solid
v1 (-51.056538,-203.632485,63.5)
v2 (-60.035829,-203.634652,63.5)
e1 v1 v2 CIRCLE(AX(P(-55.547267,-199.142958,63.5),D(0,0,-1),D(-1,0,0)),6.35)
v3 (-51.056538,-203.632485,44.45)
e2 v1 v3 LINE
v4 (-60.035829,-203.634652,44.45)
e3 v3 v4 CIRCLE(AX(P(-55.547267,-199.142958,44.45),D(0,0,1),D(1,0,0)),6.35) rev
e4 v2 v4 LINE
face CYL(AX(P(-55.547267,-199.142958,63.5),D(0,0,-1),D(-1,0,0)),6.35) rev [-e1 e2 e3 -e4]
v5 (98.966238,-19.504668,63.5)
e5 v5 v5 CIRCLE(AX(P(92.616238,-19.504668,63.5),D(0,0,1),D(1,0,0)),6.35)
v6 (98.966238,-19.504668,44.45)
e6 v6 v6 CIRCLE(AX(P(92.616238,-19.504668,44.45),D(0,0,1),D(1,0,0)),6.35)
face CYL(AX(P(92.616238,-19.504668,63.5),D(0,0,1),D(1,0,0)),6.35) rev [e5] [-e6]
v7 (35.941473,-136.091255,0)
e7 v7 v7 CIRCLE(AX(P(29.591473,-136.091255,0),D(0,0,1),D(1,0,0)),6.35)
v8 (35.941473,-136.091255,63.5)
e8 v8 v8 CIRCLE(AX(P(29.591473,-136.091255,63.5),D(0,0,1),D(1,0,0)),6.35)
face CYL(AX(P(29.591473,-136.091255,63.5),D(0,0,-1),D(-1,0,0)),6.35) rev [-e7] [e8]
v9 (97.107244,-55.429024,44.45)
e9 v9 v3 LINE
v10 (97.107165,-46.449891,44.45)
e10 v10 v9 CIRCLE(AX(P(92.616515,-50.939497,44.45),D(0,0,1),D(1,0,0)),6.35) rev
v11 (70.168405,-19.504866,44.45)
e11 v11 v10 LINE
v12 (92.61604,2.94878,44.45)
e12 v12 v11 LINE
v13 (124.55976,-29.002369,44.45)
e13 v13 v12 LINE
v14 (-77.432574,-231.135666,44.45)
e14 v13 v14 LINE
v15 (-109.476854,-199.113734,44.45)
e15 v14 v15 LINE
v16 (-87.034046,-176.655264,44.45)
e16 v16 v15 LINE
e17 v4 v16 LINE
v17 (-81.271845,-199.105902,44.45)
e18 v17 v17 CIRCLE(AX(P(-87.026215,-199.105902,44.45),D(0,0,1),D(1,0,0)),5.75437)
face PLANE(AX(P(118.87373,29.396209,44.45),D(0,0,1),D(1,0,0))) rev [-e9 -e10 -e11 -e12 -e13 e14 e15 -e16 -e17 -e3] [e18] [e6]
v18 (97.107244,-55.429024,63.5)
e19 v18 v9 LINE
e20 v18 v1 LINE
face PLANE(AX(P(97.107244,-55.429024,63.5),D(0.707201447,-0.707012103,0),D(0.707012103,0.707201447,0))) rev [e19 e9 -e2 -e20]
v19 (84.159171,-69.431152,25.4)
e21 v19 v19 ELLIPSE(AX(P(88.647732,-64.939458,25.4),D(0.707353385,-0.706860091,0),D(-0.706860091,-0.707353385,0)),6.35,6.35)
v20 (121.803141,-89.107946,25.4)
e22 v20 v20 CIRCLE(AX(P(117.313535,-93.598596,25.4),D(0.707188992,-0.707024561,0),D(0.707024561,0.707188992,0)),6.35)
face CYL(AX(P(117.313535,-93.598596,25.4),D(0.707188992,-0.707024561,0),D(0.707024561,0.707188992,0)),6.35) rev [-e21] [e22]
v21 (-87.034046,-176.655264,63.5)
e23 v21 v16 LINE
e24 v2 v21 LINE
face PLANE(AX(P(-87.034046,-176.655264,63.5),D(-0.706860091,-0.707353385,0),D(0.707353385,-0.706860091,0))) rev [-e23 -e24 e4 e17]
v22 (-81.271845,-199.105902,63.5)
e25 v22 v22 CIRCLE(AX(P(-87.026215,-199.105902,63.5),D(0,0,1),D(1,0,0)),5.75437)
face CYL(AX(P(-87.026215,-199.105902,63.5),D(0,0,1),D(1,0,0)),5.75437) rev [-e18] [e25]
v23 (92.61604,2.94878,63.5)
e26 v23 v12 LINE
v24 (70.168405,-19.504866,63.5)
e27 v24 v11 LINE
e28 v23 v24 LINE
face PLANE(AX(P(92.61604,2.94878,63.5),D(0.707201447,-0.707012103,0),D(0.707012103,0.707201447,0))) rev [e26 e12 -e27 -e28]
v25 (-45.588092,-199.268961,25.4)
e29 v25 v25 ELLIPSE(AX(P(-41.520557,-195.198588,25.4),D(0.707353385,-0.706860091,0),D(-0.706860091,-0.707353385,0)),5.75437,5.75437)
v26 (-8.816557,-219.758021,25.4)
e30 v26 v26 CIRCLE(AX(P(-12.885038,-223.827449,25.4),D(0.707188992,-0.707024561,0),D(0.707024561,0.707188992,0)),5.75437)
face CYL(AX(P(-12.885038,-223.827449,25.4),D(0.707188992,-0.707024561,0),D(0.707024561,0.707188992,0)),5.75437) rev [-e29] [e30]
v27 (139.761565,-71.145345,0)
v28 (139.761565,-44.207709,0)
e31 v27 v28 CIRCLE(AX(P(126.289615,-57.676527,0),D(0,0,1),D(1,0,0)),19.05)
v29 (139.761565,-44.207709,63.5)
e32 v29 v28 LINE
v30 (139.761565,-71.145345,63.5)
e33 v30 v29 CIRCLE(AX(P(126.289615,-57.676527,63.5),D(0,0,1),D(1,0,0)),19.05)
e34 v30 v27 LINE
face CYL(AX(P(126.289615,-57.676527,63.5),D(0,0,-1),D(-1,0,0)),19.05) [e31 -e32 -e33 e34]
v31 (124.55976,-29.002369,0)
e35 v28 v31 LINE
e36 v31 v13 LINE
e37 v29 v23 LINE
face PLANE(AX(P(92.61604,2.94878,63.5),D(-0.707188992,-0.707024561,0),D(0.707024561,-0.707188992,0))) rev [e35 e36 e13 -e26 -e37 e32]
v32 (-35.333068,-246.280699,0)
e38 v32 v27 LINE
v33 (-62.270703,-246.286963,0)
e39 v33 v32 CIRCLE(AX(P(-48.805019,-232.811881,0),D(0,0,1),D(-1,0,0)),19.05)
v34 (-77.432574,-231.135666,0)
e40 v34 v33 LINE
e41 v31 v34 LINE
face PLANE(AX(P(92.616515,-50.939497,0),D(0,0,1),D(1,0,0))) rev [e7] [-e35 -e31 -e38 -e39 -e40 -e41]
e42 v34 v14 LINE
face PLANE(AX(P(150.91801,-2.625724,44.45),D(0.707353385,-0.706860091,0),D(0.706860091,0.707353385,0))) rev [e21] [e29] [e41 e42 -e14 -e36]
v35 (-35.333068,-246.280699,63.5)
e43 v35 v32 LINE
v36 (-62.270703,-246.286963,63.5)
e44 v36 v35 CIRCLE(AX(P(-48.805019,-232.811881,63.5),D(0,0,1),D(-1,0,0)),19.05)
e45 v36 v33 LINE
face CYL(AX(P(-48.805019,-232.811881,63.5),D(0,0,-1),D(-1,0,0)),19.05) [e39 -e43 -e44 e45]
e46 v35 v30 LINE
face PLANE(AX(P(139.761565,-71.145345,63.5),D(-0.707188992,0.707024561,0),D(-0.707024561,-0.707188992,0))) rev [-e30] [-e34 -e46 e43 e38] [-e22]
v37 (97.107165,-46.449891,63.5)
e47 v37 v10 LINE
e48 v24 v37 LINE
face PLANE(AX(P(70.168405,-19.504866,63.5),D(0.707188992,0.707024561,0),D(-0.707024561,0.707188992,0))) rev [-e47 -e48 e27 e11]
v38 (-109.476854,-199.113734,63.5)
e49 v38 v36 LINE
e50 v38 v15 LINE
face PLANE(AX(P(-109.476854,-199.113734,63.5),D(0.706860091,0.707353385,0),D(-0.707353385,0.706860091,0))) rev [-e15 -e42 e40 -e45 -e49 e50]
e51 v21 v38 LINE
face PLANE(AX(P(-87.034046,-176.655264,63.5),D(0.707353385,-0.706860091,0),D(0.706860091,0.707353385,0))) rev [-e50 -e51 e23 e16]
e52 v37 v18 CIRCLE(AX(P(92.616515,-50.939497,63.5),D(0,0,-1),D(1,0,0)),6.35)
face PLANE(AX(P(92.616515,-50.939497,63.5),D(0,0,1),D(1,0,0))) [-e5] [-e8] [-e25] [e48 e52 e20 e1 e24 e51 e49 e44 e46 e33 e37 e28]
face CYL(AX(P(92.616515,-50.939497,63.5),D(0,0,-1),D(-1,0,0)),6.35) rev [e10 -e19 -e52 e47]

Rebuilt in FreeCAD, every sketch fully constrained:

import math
import FreeCAD as App
import Part
import Sketcher
Q = App.Units.Quantity

doc = App.newDocument("Part")
params = doc.addObject("Spreadsheet::Sheet", "Params")
for row, (alias, value) in enumerate([
    ("sketch1_diameter", "0.5 in"),
    ("sketch1_radius", "0.75 in"),
    ("sketch1_length", "1.25 in"),
    ("sketch1_length2", "9.75 in"),
    ("pad1_length", "2.5 in"),
    ("sketch2_height", "1.75 in"),
    ("hole_diameter", "0.4531 in"),
    ("hole2_diameter", "0.4531 in"),
    ("hole2_cbore_diameter", "0.5 in"),
    ("hole2_cbore_depth", "1 in"),
    ("sketch5_diameter", "0.5 in"),
    ("hole3_diameter", "0.5 in"),
    ("hole4_diameter", "0.4531 in"),
], start=1):
    params.set(f"A{row}", alias)
    params.set(f"B{row}", "=" + value)
    params.setAlias(f"B{row}", alias)

body = doc.addObject("PartDesign::Body", "Body")

# Sketch on XY plane
sketch1 = body.newObject("Sketcher::SketchObject", "Sketch")
sketch1.AttachmentSupport = (doc.getObject("XY_Plane"), [""])
sketch1.MapMode = "FlatFace"
sketch1.addGeometry([
    Part.LineSegment(App.Vector(-87, -177, 0), App.Vector(-109, -199, 0)),  # 0
    Part.LineSegment(App.Vector(-109, -199, 0), App.Vector(-62, -246, 0)),  # 1
    Part.ArcOfCircle(Part.Circle(App.Vector(-49, -233, 0), App.Vector(0, 0, 1), 19), math.radians(-135), math.radians(-45)),  # 2
    Part.LineSegment(App.Vector(-35, -246, 0), App.Vector(140, -71, 0)),  # 3
    Part.ArcOfCircle(Part.Circle(App.Vector(126, -58, 0), App.Vector(0, 0, 1), 19), math.radians(-45), math.radians(45)),  # 4
    Part.LineSegment(App.Vector(140, -44, 0), App.Vector(124, -28, 0)),  # 5
    Part.LineSegment(App.Vector(124, -28, 0), App.Vector(93, 3, 0)),  # 6
    Part.LineSegment(App.Vector(93, 3, 0), App.Vector(70, -20, 0)),  # 7
    Part.LineSegment(App.Vector(70, -20, 0), App.Vector(97, -46, 0)),  # 8
    Part.ArcOfCircle(Part.Circle(App.Vector(93, -51, 0), App.Vector(0, 0, 1), 6), math.radians(-45), math.radians(45)),  # 9
    Part.LineSegment(App.Vector(97, -55, 0), App.Vector(-51, -204, 0)),  # 10
    Part.ArcOfCircle(Part.Circle(App.Vector(-56, -199, 0), App.Vector(0, 0, 1), 6), math.radians(-135), math.radians(-45)),  # 11
    Part.LineSegment(App.Vector(-60, -204, 0), App.Vector(-87, -177, 0)),  # 12
    Part.Circle(App.Vector(30, -136, 0), App.Vector(0, 0, 1), 6),  # 13
], False)
sketch1.addConstraint([
    Sketcher.Constraint("Coincident", 0, 2, 1, 1),
    Sketcher.Constraint("Tangent", 1, 2, 2, 1),
    Sketcher.Constraint("Tangent", 2, 2, 3, 1),
    Sketcher.Constraint("Tangent", 3, 2, 4, 1),
    Sketcher.Constraint("Tangent", 4, 2, 5, 1),
    Sketcher.Constraint("Coincident", 5, 2, 6, 1),
    Sketcher.Constraint("Coincident", 6, 2, 7, 1),
    Sketcher.Constraint("Coincident", 7, 2, 8, 1),
    Sketcher.Constraint("Tangent", 8, 2, 9, 2),
    Sketcher.Constraint("Tangent", 9, 1, 10, 1),
    Sketcher.Constraint("Tangent", 10, 2, 11, 2),
    Sketcher.Constraint("Tangent", 11, 1, 12, 1),
    Sketcher.Constraint("Coincident", 12, 2, 0, 1),
    Sketcher.Constraint("Equal", 2, 4),
    Sketcher.Constraint("Equal", 9, 11),
    Sketcher.Constraint("Equal", 11, 13),
    Sketcher.Constraint("Perpendicular", 0, 1),
    Sketcher.Constraint("Parallel", 5, 6),
    Sketcher.Constraint("Parallel", 6, 8),
    Sketcher.Constraint("Parallel", 7, 10),
    Sketcher.Constraint("Parallel", 1, 12),
    Sketcher.Constraint("Vertical", 3, 2, 4, 2),
    Sketcher.Constraint("Equal", 0, 7),
    Sketcher.Constraint("Diameter", 13, Q("0.5 in")),
    Sketcher.Constraint("Radius", 2, Q("0.75 in")),
    Sketcher.Constraint("Distance", 0, Q("1.25 in")),
    Sketcher.Constraint("Distance", 3, Q("9.75 in")),
    Sketcher.Constraint("Angle", 0, Q("-134.980015 deg")),
    Sketcher.Constraint("DistanceX", 10, 2, -1, 1, Q("2.0100999 in")),
    Sketcher.Constraint("DistanceY", 0, 2, 13, 3, Q("2.4811999 in")),
    Sketcher.Constraint("DistanceY", 2, 2, -1, 1, Q("246.280699 mm")),
    Sketcher.Constraint("DistanceX", 9, 3, 4, 3, Q("33.6731 mm")),
    Sketcher.Constraint("DistanceX", 11, 3, 2, 2, Q("20.214199 mm")),
    Sketcher.Constraint("DistanceY", 5, 2, 7, 2, Q("8.986601 mm")),
    Sketcher.Constraint("Distance", 5, Q("22.223539 mm")),
    Sketcher.Constraint("Distance", 8, Q("38.10159 mm")),
    Sketcher.Constraint("DistanceX", 13, 3, 9, 3, Q("63.025042 mm")),
    Sketcher.Constraint("DistanceY", 13, 3, 9, 3, Q("85.151758 mm")),
])
sketch1.setExpression("Constraints[23]", "Params.sketch1_diameter")
sketch1.setExpression("Constraints[24]", "Params.sketch1_radius")
sketch1.setExpression("Constraints[25]", "Params.sketch1_length")
sketch1.setExpression("Constraints[26]", "Params.sketch1_length2")
pad1 = body.newObject("PartDesign::Pad", "Pad")
pad1.Profile = sketch1
pad1.setExpression("Length", "Params.pad1_length")

# Sketch on an angled plane
sketch2 = body.newObject("Sketcher::SketchObject", "Sketch001")
sketch2.Placement = App.Placement(App.Vector(-154.257083, -154.364734, 0), App.Rotation(App.Vector(0.707353385, -0.706860091, 0), App.Vector(0, 0, 1), App.Vector(-0.706860091, -0.707353385, 0), "ZXY"))
sketch2.addGeometry([
    Part.LineSegment(App.Vector(63, 44, 0), App.Vector(63, 0, 0)),
    Part.LineSegment(App.Vector(63, 0, 0), App.Vector(109, 0, 0)),
    Part.LineSegment(App.Vector(109, 0, 0), App.Vector(109, 44, 0)),
    Part.LineSegment(App.Vector(109, 44, 0), App.Vector(63, 44, 0)),
], False)
sketch2.addConstraint([
    Sketcher.Constraint("Coincident", 0, 2, 1, 1),
    Sketcher.Constraint("Coincident", 1, 2, 2, 1),
    Sketcher.Constraint("Coincident", 2, 2, 3, 1),
    Sketcher.Constraint("Coincident", 3, 2, 0, 1),
    Sketcher.Constraint("Vertical", 0),
    Sketcher.Constraint("Horizontal", 1),
    Sketcher.Constraint("Vertical", 2),
    Sketcher.Constraint("Horizontal", 3),
    Sketcher.Constraint("PointOnObject", 0, 2, -1),
    Sketcher.Constraint("DistanceY", 0, 2, 0, 1, Q("1.75 in")),
    Sketcher.Constraint("DistanceX", 1, 1, 1, 2, Q("45.301656 mm")),
    Sketcher.Constraint("DistanceX", -1, 1, 0, 2, Q("63.306729 mm")),
])
sketch2.setExpression("Constraints[9]", "Params.sketch2_height")
pocket1 = body.newObject("PartDesign::Pocket", "Pocket")
pocket1.Profile = sketch2
pocket1.Type = "ThroughAll"

# Sketch on XY plane
sketch3 = body.newObject("Sketcher::SketchObject", "Sketch002")
sketch3.AttachmentSupport = (doc.getObject("XY_Plane"), [""])
sketch3.MapMode = "FlatFace"
sketch3.AttachmentOffset = App.Placement(App.Vector(0, 0, 2.5 * 25.4), App.Rotation())
sketch3.addGeometry(Part.Circle(App.Vector(-87, -199, 0), App.Vector(0, 0, 1), 6), False)
sketch3.addConstraint([
    Sketcher.Constraint("Diameter", 0, Q("0.4531 in")),
    Sketcher.Constraint("DistanceX", 0, 3, -1, 1, Q("87.026215 mm")),
    Sketcher.Constraint("DistanceY", 0, 3, -1, 1, Q("199.105902 mm")),
])
doc.recompute()
hole = body.newObject("PartDesign::Hole", "Hole")
hole.Profile = sketch3
hole.ThreadType = "None"
hole.setExpression("Diameter", "Params.hole_diameter")
hole.DepthType = "ThroughAll"

# Sketch on XY plane
sketch4 = body.newObject("Sketcher::SketchObject", "Sketch003")
sketch4.AttachmentSupport = (doc.getObject("XY_Plane"), [""])
sketch4.MapMode = "FlatFace"
sketch4.AttachmentOffset = App.Placement(App.Vector(0, 0, 2.5 * 25.4), App.Rotation())
sketch4.addGeometry(Part.Circle(App.Vector(93, -20, 0), App.Vector(0, 0, 1), 6), False)
sketch4.addConstraint([
    Sketcher.Constraint("Diameter", 0, Q("0.4531 in")),
    Sketcher.Constraint("DistanceY", 0, 3, -1, 1, Q("19.504668 mm")),
    Sketcher.Constraint("DistanceX", -1, 1, 0, 3, Q("92.616238 mm")),
])
doc.recompute()
hole2 = body.newObject("PartDesign::Hole", "Hole001")
hole2.Profile = sketch4
hole2.ThreadType = "None"
hole2.setExpression("Diameter", "Params.hole2_diameter")
hole2.DepthType = "ThroughAll"
hole2.HoleCutType = "Counterbore"
hole2.setExpression("HoleCutDiameter", "Params.hole2_cbore_diameter")
hole2.setExpression("HoleCutDepth", "Params.hole2_cbore_depth")

# Sketch on an angled plane
sketch5 = body.newObject("Sketcher::SketchObject", "Sketch004")
sketch5.Placement = App.Placement(App.Vector(105.469704, -105.445181, 0), App.Rotation(App.Vector(0, 0, -1), App.Vector(0.707024561, 0.707188992, 0), App.Vector(0.707188992, -0.707024561, 0), "ZXY"))
sketch5.addGeometry(Part.Circle(App.Vector(-25, 17, 0), App.Vector(0, 0, 1), 6), False)
sketch5.addConstraint([
    Sketcher.Constraint("Diameter", 0, Q("0.5 in")),
    Sketcher.Constraint("DistanceX", 0, 3, -1, 1, Q("1 in")),
    Sketcher.Constraint("DistanceY", -1, 1, 0, 3, Q("16.751654 mm")),
])
sketch5.setExpression("Constraints[0]", "Params.sketch5_diameter")
doc.recompute()
hole3 = body.newObject("PartDesign::Hole", "Hole002")
hole3.Profile = sketch5
hole3.ThreadType = "None"
hole3.setExpression("Diameter", "Params.hole3_diameter")
hole3.DepthType = "ThroughAll"

# Sketch on an angled plane
sketch6 = body.newObject("Sketcher::SketchObject", "Sketch005")
sketch6.Placement = App.Placement(App.Vector(105.469704, -105.445181, 0), App.Rotation(App.Vector(0, 0, -1), App.Vector(0.707024561, 0.707188992, 0), App.Vector(0.707188992, -0.707024561, 0), "ZXY"))
sketch6.addGeometry(Part.Circle(App.Vector(-25, -167, 0), App.Vector(0, 0, 1), 6), False)
sketch6.addConstraint([
    Sketcher.Constraint("DistanceX", 0, 3, -1, 1, Q("1 in")),
    Sketcher.Constraint("Diameter", 0, Q("0.4531 in")),
    Sketcher.Constraint("DistanceY", 0, 3, -1, 1, Q("167.398346 mm")),
])
doc.recompute()
hole4 = body.newObject("PartDesign::Hole", "Hole003")
hole4.Profile = sketch6
hole4.ThreadType = "None"
hole4.setExpression("Diameter", "Params.hole4_diameter")
hole4.DepthType = "ThroughAll"

doc.recompute()
